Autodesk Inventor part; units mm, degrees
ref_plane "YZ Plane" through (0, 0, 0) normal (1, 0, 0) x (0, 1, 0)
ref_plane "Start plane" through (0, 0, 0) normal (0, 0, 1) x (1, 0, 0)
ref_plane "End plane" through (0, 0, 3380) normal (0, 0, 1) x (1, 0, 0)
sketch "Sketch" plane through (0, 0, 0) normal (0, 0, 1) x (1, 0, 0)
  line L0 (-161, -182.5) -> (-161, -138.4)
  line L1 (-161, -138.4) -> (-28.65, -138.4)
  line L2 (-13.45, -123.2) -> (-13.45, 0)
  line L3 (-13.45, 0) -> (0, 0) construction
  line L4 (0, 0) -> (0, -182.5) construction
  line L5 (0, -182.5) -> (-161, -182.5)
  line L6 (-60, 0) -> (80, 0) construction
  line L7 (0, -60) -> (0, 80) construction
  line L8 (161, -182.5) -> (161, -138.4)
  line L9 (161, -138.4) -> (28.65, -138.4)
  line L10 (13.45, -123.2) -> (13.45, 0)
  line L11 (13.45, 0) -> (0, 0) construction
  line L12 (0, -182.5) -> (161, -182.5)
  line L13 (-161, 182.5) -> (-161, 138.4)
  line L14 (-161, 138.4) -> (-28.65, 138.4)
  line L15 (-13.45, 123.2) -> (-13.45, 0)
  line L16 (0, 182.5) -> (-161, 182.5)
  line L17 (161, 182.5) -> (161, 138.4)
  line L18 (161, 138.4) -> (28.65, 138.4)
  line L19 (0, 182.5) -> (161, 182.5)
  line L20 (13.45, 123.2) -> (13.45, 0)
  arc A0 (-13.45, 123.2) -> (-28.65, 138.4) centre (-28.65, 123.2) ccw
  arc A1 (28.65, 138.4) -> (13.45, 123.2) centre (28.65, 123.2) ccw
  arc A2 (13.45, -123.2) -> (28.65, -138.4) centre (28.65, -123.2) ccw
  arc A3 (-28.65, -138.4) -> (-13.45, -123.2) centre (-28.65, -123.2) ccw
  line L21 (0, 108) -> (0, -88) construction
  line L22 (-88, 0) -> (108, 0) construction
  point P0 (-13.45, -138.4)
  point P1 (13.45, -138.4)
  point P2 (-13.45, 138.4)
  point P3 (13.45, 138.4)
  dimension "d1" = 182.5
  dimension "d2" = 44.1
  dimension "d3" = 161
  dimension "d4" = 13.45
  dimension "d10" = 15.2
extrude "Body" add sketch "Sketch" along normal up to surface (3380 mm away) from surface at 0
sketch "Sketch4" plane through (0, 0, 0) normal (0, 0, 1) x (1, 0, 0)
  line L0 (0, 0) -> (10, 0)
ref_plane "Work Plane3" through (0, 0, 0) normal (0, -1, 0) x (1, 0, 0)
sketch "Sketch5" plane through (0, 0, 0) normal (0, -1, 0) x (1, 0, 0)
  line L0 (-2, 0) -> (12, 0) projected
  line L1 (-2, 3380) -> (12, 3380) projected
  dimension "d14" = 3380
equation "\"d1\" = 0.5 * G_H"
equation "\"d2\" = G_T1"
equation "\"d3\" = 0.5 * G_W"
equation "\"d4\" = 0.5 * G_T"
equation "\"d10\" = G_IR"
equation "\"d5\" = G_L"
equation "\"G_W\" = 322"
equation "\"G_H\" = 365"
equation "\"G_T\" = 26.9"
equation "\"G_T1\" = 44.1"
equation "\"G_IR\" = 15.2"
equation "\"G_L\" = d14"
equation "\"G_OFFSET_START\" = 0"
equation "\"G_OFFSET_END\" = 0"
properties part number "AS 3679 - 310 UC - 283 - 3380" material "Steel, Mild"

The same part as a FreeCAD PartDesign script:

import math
import FreeCAD as App
import Part
import Sketcher

V = App.Vector

doc = App.newDocument("Part")
params = doc.addObject("Spreadsheet::Sheet", "Params")
for row, (alias, value) in enumerate([
    ("sketch1_radius", "15.2 mm"),
    ("sketch1_height", "44.1 mm"),
    ("pad1_length", "3380 mm"),
], start=1):
    params.set(f"A{row}", alias)
    params.set(f"B{row}", "=" + value)
    params.setAlias(f"B{row}", alias)

body = doc.addObject("PartDesign::Body", "Body")

# Sketch on XY plane
sketch1 = doc.addObject("Sketcher::SketchObject", "Sketch")
body.addObject(sketch1)
sketch1.AttachmentSupport = (doc.XY_Plane, [""])
sketch1.MapMode = "FlatFace"
sketch1.addGeometry(Part.LineSegment(V(-161, -138, 0), V(-161, -182, 0)), False)
sketch1.addGeometry(Part.LineSegment(V(-161, -182, 0), V(161, -182, 0)), False)
sketch1.addGeometry(Part.LineSegment(V(161, -182, 0), V(161, -138, 0)), False)
sketch1.addGeometry(Part.LineSegment(V(161, -138, 0), V(29, -138, 0)), False)
sketch1.addGeometry(Part.ArcOfCircle(Part.Circle(V(29, -123, 0), V(0, 0, 1), 15), math.radians(180), math.radians(270)), False)
sketch1.addGeometry(Part.LineSegment(V(13, -123, 0), V(13, 123, 0)), False)
sketch1.addGeometry(Part.ArcOfCircle(Part.Circle(V(29, 123, 0), V(0, 0, 1), 15), math.radians(90), math.radians(180)), False)
sketch1.addGeometry(Part.LineSegment(V(29, 138, 0), V(161, 138, 0)), False)
sketch1.addGeometry(Part.LineSegment(V(161, 138, 0), V(161, 182, 0)), False)
sketch1.addGeometry(Part.LineSegment(V(161, 182, 0), V(-161, 182, 0)), False)
sketch1.addGeometry(Part.LineSegment(V(-161, 182, 0), V(-161, 138, 0)), False)
sketch1.addGeometry(Part.LineSegment(V(-161, 138, 0), V(-29, 138, 0)), False)
sketch1.addGeometry(Part.ArcOfCircle(Part.Circle(V(-29, 123, 0), V(0, 0, 1), 15), math.radians(0), math.radians(90)), False)
sketch1.addGeometry(Part.LineSegment(V(-13, 123, 0), V(-13, -123, 0)), False)
sketch1.addGeometry(Part.ArcOfCircle(Part.Circle(V(-29, -123, 0), V(0, 0, 1), 15), math.radians(-90), math.radians(0)), False)
sketch1.addGeometry(Part.LineSegment(V(-29, -138, 0), V(-161, -138, 0)), False)
sketch1.addConstraint(Sketcher.Constraint("Coincident", 0, 2, 1, 1))
sketch1.addConstraint(Sketcher.Constraint("Coincident", 1, 2, 2, 1))
sketch1.addConstraint(Sketcher.Constraint("Coincident", 2, 2, 3, 1))
sketch1.addConstraint(Sketcher.Constraint("Tangent", 3, 2, 4, 2))
sketch1.addConstraint(Sketcher.Constraint("Tangent", 4, 1, 5, 1))
sketch1.addConstraint(Sketcher.Constraint("Tangent", 5, 2, 6, 2))
sketch1.addConstraint(Sketcher.Constraint("Tangent", 6, 1, 7, 1))
sketch1.addConstraint(Sketcher.Constraint("Coincident", 7, 2, 8, 1))
sketch1.addConstraint(Sketcher.Constraint("Coincident", 8, 2, 9, 1))
sketch1.addConstraint(Sketcher.Constraint("Coincident", 9, 2, 10, 1))
sketch1.addConstraint(Sketcher.Constraint("Coincident", 10, 2, 11, 1))
sketch1.addConstraint(Sketcher.Constraint("Tangent", 11, 2, 12, 2))
sketch1.addConstraint(Sketcher.Constraint("Tangent", 12, 1, 13, 1))
sketch1.addConstraint(Sketcher.Constraint("Tangent", 13, 2, 14, 2))
sketch1.addConstraint(Sketcher.Constraint("Tangent", 14, 1, 15, 1))
sketch1.addConstraint(Sketcher.Constraint("Coincident", 15, 2, 0, 1))
sketch1.addConstraint(Sketcher.Constraint("Vertical", 0))
sketch1.addConstraint(Sketcher.Constraint("Horizontal", 1))
sketch1.addConstraint(Sketcher.Constraint("Vertical", 2))
sketch1.addConstraint(Sketcher.Constraint("Horizontal", 3))
sketch1.addConstraint(Sketcher.Constraint("Vertical", 5))
sketch1.addConstraint(Sketcher.Constraint("Horizontal", 7))
sketch1.addConstraint(Sketcher.Constraint("Vertical", 8))
sketch1.addConstraint(Sketcher.Constraint("Horizontal", 9))
sketch1.addConstraint(Sketcher.Constraint("Vertical", 10))
sketch1.addConstraint(Sketcher.Constraint("Horizontal", 11))
sketch1.addConstraint(Sketcher.Constraint("Vertical", 13))
sketch1.addConstraint(Sketcher.Constraint("Horizontal", 15))
sketch1.addConstraint(Sketcher.Constraint("Equal", 4, 6))
sketch1.addConstraint(Sketcher.Constraint("Equal", 6, 12))
sketch1.addConstraint(Sketcher.Constraint("Equal", 12, 14))
sketch1.addConstraint(Sketcher.Constraint("Symmetric", 4, 3, 12, 3, -1, 1))
sketch1.addConstraint(Sketcher.Constraint("Symmetric", 0, 2, 8, 2, -1, 1))
sketch1.addConstraint(Sketcher.Constraint("Symmetric", 7, 2, 10, 2, -2))
sketch1.addConstraint(Sketcher.Constraint("Symmetric", 2, 2, 15, 2, -2))
sketch1.addConstraint(Sketcher.Constraint("Radius", 4, 15.2))
sketch1.addConstraint(Sketcher.Constraint("DistanceY", 0, 2, 0, 1, 44.1))
sketch1.addConstraint(Sketcher.Constraint("DistanceX", 0, 2, -1, 1, 161.0))
sketch1.addConstraint(Sketcher.Constraint("DistanceY", 0, 2, -1, 1, 182.5))
sketch1.addConstraint(Sketcher.Constraint("DistanceX", -1, 1, 4, 1, 13.45))
sketch1.setExpression("Constraints[35]", "Params.sketch1_radius")
sketch1.setExpression("Constraints[36]", "Params.sketch1_height")
pad1 = doc.addObject("PartDesign::Pad", "Pad")
body.addObject(pad1)
pad1.Profile = sketch1
pad1.setExpression("Length", "Params.pad1_length")

doc.recompute()
